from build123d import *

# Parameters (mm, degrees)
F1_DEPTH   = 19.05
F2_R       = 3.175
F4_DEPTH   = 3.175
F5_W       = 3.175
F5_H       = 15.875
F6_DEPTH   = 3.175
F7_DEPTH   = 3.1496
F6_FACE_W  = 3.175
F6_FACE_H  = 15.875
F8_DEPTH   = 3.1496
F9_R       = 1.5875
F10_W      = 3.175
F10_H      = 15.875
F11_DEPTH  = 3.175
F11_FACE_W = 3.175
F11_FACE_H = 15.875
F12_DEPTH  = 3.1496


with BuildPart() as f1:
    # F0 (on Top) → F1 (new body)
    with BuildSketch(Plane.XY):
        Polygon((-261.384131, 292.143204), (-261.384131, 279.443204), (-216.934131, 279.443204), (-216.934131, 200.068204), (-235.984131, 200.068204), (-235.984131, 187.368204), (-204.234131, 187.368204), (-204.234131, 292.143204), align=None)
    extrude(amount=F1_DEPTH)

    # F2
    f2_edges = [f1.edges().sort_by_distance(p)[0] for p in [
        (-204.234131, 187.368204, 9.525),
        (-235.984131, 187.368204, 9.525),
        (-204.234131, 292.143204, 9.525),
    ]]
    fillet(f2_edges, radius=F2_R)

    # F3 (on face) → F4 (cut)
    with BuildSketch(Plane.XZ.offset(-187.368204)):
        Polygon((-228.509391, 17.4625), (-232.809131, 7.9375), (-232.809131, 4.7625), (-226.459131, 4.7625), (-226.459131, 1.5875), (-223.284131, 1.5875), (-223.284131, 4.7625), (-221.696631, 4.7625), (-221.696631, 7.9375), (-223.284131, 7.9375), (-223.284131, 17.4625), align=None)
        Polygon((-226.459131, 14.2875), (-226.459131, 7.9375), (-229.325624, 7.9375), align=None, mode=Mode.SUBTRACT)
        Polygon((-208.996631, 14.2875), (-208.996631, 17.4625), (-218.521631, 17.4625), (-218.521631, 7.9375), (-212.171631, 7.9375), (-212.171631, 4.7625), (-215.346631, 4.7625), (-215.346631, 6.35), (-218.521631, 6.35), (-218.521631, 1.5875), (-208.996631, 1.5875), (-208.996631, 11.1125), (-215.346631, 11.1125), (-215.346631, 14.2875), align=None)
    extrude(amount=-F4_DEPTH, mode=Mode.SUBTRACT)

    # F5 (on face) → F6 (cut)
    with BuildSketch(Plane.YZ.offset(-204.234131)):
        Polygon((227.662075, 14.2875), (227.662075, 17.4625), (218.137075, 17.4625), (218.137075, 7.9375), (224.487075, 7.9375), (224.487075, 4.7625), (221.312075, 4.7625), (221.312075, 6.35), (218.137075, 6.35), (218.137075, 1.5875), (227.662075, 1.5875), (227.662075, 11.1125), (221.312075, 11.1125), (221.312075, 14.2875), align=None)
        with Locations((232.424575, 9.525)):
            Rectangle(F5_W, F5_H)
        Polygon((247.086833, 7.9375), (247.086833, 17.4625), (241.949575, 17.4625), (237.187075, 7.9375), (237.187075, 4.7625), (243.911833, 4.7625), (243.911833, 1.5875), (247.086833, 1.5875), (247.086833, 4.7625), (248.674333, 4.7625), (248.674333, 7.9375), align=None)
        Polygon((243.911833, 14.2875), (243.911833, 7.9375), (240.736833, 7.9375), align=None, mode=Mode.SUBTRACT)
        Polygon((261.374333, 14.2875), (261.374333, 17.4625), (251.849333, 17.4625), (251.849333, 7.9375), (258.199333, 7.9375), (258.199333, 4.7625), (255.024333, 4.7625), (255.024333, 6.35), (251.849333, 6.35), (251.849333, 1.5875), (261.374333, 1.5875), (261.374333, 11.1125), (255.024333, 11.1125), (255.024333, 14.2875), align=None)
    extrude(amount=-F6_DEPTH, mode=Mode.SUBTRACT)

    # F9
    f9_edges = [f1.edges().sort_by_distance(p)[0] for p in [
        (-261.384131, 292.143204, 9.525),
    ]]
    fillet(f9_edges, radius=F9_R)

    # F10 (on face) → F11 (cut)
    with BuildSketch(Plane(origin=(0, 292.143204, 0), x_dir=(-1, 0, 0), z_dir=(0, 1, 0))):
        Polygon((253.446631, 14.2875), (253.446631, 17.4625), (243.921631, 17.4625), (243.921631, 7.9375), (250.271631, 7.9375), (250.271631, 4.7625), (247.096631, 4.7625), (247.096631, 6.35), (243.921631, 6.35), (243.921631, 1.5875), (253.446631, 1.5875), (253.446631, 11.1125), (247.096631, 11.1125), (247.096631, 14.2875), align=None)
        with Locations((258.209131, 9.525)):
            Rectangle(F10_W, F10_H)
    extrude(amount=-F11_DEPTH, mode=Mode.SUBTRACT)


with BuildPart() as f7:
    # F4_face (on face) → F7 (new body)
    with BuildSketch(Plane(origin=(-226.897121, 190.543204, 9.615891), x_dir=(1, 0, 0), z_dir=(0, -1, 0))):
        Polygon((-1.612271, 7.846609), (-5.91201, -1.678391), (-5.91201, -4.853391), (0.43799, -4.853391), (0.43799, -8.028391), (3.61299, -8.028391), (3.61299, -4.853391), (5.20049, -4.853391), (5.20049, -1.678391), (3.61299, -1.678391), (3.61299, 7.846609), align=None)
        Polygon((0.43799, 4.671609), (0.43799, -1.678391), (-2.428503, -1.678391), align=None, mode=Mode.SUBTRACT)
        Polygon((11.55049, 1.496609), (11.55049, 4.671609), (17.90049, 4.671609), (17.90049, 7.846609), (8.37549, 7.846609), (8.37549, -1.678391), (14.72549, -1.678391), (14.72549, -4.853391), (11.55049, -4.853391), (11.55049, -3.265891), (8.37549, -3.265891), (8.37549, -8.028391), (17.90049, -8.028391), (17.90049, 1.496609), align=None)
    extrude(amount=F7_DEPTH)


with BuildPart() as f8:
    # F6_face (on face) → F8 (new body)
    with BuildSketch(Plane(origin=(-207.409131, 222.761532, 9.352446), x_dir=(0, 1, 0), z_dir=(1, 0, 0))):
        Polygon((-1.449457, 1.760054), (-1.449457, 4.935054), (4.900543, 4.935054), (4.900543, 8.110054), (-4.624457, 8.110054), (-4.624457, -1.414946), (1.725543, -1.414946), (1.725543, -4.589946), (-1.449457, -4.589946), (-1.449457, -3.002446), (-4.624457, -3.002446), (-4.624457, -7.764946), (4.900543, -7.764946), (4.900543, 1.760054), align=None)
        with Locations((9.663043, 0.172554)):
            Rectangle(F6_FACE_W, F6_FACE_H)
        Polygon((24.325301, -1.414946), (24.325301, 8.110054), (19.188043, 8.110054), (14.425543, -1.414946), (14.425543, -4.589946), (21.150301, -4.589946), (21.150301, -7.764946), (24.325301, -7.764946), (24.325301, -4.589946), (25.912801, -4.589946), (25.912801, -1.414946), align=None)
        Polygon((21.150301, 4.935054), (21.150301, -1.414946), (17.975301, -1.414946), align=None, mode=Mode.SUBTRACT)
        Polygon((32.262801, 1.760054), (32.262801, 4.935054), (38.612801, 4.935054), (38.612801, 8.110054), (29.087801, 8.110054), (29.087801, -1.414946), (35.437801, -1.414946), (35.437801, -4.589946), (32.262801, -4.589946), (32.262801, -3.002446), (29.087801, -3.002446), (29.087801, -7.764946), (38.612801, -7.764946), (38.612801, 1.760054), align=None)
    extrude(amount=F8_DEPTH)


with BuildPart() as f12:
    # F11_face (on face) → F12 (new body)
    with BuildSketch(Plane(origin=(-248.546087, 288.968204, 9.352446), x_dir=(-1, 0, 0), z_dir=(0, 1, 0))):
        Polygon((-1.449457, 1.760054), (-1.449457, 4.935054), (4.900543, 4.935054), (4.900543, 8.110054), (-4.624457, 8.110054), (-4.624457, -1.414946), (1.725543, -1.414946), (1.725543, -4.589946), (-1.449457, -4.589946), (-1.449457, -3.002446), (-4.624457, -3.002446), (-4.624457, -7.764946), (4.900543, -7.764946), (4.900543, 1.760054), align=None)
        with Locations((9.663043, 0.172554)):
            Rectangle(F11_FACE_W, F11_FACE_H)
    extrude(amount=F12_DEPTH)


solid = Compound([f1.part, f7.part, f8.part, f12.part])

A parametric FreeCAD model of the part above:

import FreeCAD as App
import Part
import Sketcher

V = App.Vector
Q = App.Units.Quantity


def edges_at(feature, points):
    """Names of the edges that pass closest to the given points."""
    edges = feature.Shape.Edges
    near = lambda p: min(range(len(edges)), key=lambda i: edges[i].distToShape(Part.Vertex(*p))[0])
    return sorted({f"Edge{near(p) + 1}" for p in points})


def add_polygon(sketch, points):
    """Adds a closed chain of lines whose ends are joined by coincident constraints."""
    first, n = sketch.GeometryCount, len(points)
    for a, b in zip(points, points[1:] + points[:1]):
        sketch.addGeometry(Part.LineSegment(App.Vector(*a, 0), App.Vector(*b, 0)), False)
    for i in range(n):
        sketch.addConstraint(Sketcher.Constraint("Coincident", first + i, 2, first + (i + 1) % n, 1))

doc = App.newDocument("Part")
body = doc.addObject("PartDesign::Body", "Body")

# Sketch on XY plane
sketch1 = body.newObject("Sketcher::SketchObject", "Sketch")
sketch1.AttachmentSupport = (doc.getObject("XY_Plane"), [""])
sketch1.MapMode = "FlatFace"
add_polygon(sketch1, [(-261, 292), (-261, 279), (-217, 279), (-217, 200), (-236, 200), (-236, 187), (-204, 187), (-204, 292)])  # lines 0-7
sketch1.addConstraint([
    Sketcher.Constraint("Vertical", 0),
    Sketcher.Constraint("Horizontal", 1),
    Sketcher.Constraint("Vertical", 2),
    Sketcher.Constraint("Horizontal", 3),
    Sketcher.Constraint("Vertical", 4),
    Sketcher.Constraint("Horizontal", 5),
    Sketcher.Constraint("Vertical", 6),
    Sketcher.Constraint("Horizontal", 7),
    Sketcher.Constraint("Equal", 0, 4),
    Sketcher.Constraint("DistanceY", 0, 2, 0, 1, Q("0.5 in")),
    Sketcher.Constraint("DistanceX", 0, 2, 3, 2, Q("1 in")),
    Sketcher.Constraint("DistanceX", 1, 1, 1, 2, Q("1.75 in")),
    Sketcher.Constraint("DistanceX", 5, 1, 5, 2, Q("1.25 in")),
    Sketcher.Constraint("DistanceY", 2, 2, 2, 1, Q("3.125 in")),
    Sketcher.Constraint("DistanceX", 0, 2, -1, 1, Q("261.384131 mm")),
    Sketcher.Constraint("DistanceY", -1, 1, 0, 2, Q("279.443204 mm")),
])
pad1 = body.newObject("PartDesign::Pad", "Pad")
pad1.Profile = sketch1
pad1.Length = Q("0.75 in")
doc.recompute()

fillet = body.newObject("PartDesign::Fillet", "Fillet")
fillet.Base = (pad1, edges_at(pad1, [(-204.234, 187.368, 9.525), (-235.984, 187.368, 9.525), (-204.234, 292.143, 9.525)]))
fillet.Radius = Q("0.125 in")

# Sketch on XZ plane
sketch2 = body.newObject("Sketcher::SketchObject", "Sketch001")
sketch2.AttachmentSupport = (doc.getObject("XZ_Plane"), [""])
sketch2.MapMode = "FlatFace"
sketch2.AttachmentOffset = App.Placement(V(0, 0, -187.368204), App.Rotation())
add_polygon(sketch2, [(-228.5, 17.5), (-232.8, 7.9), (-232.8, 4.8), (-226.5, 4.8), (-226.5, 1.6), (-223.3, 1.6), (-223.3, 4.8), (-221.7, 4.8), (-221.7, 7.9), (-223.3, 7.9), (-223.3, 17.5)])  # lines 0-10
add_polygon(sketch2, [(-229.3, 7.9), (-226.5, 14.3), (-226.5, 7.9)])  # lines 11-13
add_polygon(sketch2, [(-209, 14.3), (-209, 17.5), (-218.5, 17.5), (-218.5, 7.9), (-212.2, 7.9), (-212.2, 4.8), (-215.3, 4.8), (-215.3, 6.3), (-218.5, 6.3), (-218.5, 1.6), (-209, 1.6), (-209, 11.1), (-215.3, 11.1), (-215.3, 14.3)])  # lines 14-27
sketch2.addConstraint([
    Sketcher.Constraint("Vertical", 1),
    Sketcher.Constraint("Horizontal", 2),
    Sketcher.Constraint("Vertical", 3),
    Sketcher.Constraint("Horizontal", 4),
    Sketcher.Constraint("Vertical", 5),
    Sketcher.Constraint("Horizontal", 6),
    Sketcher.Constraint("Vertical", 7),
    Sketcher.Constraint("Horizontal", 8),
    Sketcher.Constraint("Vertical", 9),
    Sketcher.Constraint("Horizontal", 10),
    Sketcher.Constraint("Vertical", 12),
    Sketcher.Constraint("Horizontal", 13),
    Sketcher.Constraint("Vertical", 14),
    Sketcher.Constraint("Horizontal", 15),
    Sketcher.Constraint("Vertical", 16),
    Sketcher.Constraint("Horizontal", 17),
    Sketcher.Constraint("Vertical", 18),
    Sketcher.Constraint("Horizontal", 19),
    Sketcher.Constraint("Vertical", 20),
    Sketcher.Constraint("Horizontal", 21),
    Sketcher.Constraint("Vertical", 22),
    Sketcher.Constraint("Horizontal", 23),
    Sketcher.Constraint("Vertical", 24),
    Sketcher.Constraint("Horizontal", 25),
    Sketcher.Constraint("Vertical", 26),
    Sketcher.Constraint("Horizontal", 27),
    Sketcher.Constraint("Parallel", 0, 11),
    Sketcher.Constraint("Horizontal", 2, 2, 5, 2),
    Sketcher.Constraint("Horizontal", 0, 2, 7, 2),
    Sketcher.Constraint("Horizontal", 8, 2, 12, 2),
    Sketcher.Constraint("Horizontal", 10, 2, 14, 2),
    Sketcher.Constraint("Horizontal", 13, 2, 16, 2),
    Sketcher.Constraint("Horizontal", 6, 2, 18, 2),
    Sketcher.Constraint("Horizontal", 4, 2, 22, 2),
    Sketcher.Constraint("Horizontal", 11, 2, 26, 2),
    Sketcher.Constraint("Vertical", 5, 2, 8, 2),
    Sketcher.Constraint("Vertical", 3, 2, 11, 2),
    Sketcher.Constraint("Vertical", 16, 2, 21, 2),
    Sketcher.Constraint("Vertical", 14, 2, 23, 2),
    Sketcher.Constraint("Vertical", 20, 2, 25, 2),
    Sketcher.Constraint("Equal", 2, 17),
    Sketcher.Constraint("Equal", 4, 19),
    Sketcher.Constraint("Equal", 19, 21),
    Sketcher.Constraint("Equal", 17, 25),
    Sketcher.Constraint("Equal", 21, 1),
    Sketcher.Constraint("Equal", 1, 3),
    Sketcher.Constraint("Equal", 23, 9),
    Sketcher.Constraint("Equal", 27, 12),
    Sketcher.Constraint("Equal", 8, 20),
    Sketcher.Constraint("Equal", 16, 24),
    Sketcher.Constraint("DistanceX", 2, 1, 2, 2, Q("0.25 in")),
    Sketcher.Constraint("DistanceX", 7, 2, 14, 2, Q("0.5 in")),
    Sketcher.Constraint("DistanceX", 6, 1, 6, 2, Q("0.0625 in")),
    Sketcher.Constraint("DistanceY", -1, 1, 20, 2, Q("0.25 in")),
    Sketcher.Constraint("DistanceX", 10, 2, 10, 1, Q("5.22526 mm")),
    Sketcher.Constraint("DistanceX", 0, 2, -1, 1, Q("232.809131 mm")),
])
pocket1 = body.newObject("PartDesign::Pocket", "Pocket")
pocket1.Profile = sketch2
pocket1.Length = Q("0.125 in")

# Sketch on YZ plane
sketch3 = body.newObject("Sketcher::SketchObject", "Sketch002")
sketch3.AttachmentSupport = (doc.getObject("YZ_Plane"), [""])
sketch3.MapMode = "FlatFace"
sketch3.AttachmentOffset = App.Placement(V(0, 0, -204.234131), App.Rotation())
add_polygon(sketch3, [(227.7, 14.3), (227.7, 17.5), (218.1, 17.5), (218.1, 7.9), (224.5, 7.9), (224.5, 4.8), (221.3, 4.8), (221.3, 6.3), (218.1, 6.3), (218.1, 1.6), (227.7, 1.6), (227.7, 11.1), (221.3, 11.1), (221.3, 14.3)])  # lines 0-13
add_polygon(sketch3, [(230.8, 17.5), (230.8, 1.6), (234, 1.6), (234, 17.5)])  # lines 14-17
add_polygon(sketch3, [(247.1, 7.9), (247.1, 17.5), (241.9, 17.5), (237.2, 7.9), (237.2, 4.8), (243.9, 4.8), (243.9, 1.6), (247.1, 1.6), (247.1, 4.8), (248.7, 4.8), (248.7, 7.9)])  # lines 18-28
add_polygon(sketch3, [(240.7, 7.9), (243.9, 14.3), (243.9, 7.9)])  # lines 29-31
add_polygon(sketch3, [(261.4, 14.3), (261.4, 17.5), (251.8, 17.5), (251.8, 7.9), (258.2, 7.9), (258.2, 4.8), (255, 4.8), (255, 6.3), (251.8, 6.3), (251.8, 1.6), (261.4, 1.6), (261.4, 11.1), (255, 11.1), (255, 14.3)])  # lines 32-45
sketch3.addConstraint([
    Sketcher.Constraint("Vertical", 0),
    Sketcher.Constraint("Horizontal", 1),
    Sketcher.Constraint("Vertical", 2),
    Sketcher.Constraint("Horizontal", 3),
    Sketcher.Constraint("Vertical", 4),
    Sketcher.Constraint("Horizontal", 5),
    Sketcher.Constraint("Vertical", 6),
    Sketcher.Constraint("Horizontal", 7),
    Sketcher.Constraint("Vertical", 8),
    Sketcher.Constraint("Horizontal", 9),
    Sketcher.Constraint("Vertical", 10),
    Sketcher.Constraint("Horizontal", 11),
    Sketcher.Constraint("Vertical", 12),
    Sketcher.Constraint("Horizontal", 13),
    Sketcher.Constraint("Vertical", 14),
    Sketcher.Constraint("Horizontal", 15),
    Sketcher.Constraint("Vertical", 16),
    Sketcher.Constraint("Horizontal", 17),
    Sketcher.Constraint("Vertical", 18),
    Sketcher.Constraint("Horizontal", 19),
    Sketcher.Constraint("Vertical", 21),
    Sketcher.Constraint("Horizontal", 22),
    Sketcher.Constraint("Vertical", 23),
    Sketcher.Constraint("Horizontal", 24),
    Sketcher.Constraint("Vertical", 25),
    Sketcher.Constraint("Horizontal", 26),
    Sketcher.Constraint("Vertical", 27),
    Sketcher.Constraint("Horizontal", 28),
    Sketcher.Constraint("Vertical", 30),
    Sketcher.Constraint("Horizontal", 31),
    Sketcher.Constraint("Vertical", 32),
    Sketcher.Constraint("Horizontal", 33),
    Sketcher.Constraint("Vertical", 34),
    Sketcher.Constraint("Horizontal", 35),
    Sketcher.Constraint("Vertical", 36),
    Sketcher.Constraint("Horizontal", 37),
    Sketcher.Constraint("Vertical", 38),
    Sketcher.Constraint("Horizontal", 39),
    Sketcher.Constraint("Vertical", 40),
    Sketcher.Constraint("Horizontal", 41),
    Sketcher.Constraint("Vertical", 42),
    Sketcher.Constraint("Horizontal", 43),
    Sketcher.Constraint("Vertical", 44),
    Sketcher.Constraint("Horizontal", 45),
    Sketcher.Constraint("Parallel", 20, 29),
    Sketcher.Constraint("Horizontal", 9, 2, 14, 2),
    Sketcher.Constraint("Horizontal", 1, 2, 16, 2),
    Sketcher.Constraint("Horizontal", 17, 2, 18, 2),
    Sketcher.Constraint("Horizontal", 3, 2, 20, 2),
    Sketcher.Constraint("Horizontal", 5, 2, 21, 2),
    Sketcher.Constraint("Horizontal", 15, 2, 23, 2),
    Sketcher.Constraint("Horizontal", 22, 2, 25, 2),
    Sketcher.Constraint("Horizontal", 20, 2, 27, 2),
    Sketcher.Constraint("Horizontal", 13, 2, 29, 2),
    Sketcher.Constraint("Horizontal", 28, 2, 30, 2),
    Sketcher.Constraint("Horizontal", 19, 2, 32, 2),
    Sketcher.Constraint("Horizontal", 31, 2, 34, 2),
    Sketcher.Constraint("Horizontal", 26, 2, 36, 2),
    Sketcher.Constraint("Horizontal", 7, 2, 38, 2),
    Sketcher.Constraint("Horizontal", 24, 2, 40, 2),
    Sketcher.Constraint("Horizontal", 11, 2, 42, 2),
    Sketcher.Constraint("Horizontal", 29, 2, 44, 2),
    Sketcher.Constraint("Vertical", 2, 2, 7, 2),
    Sketcher.Constraint("Vertical", 0, 2, 9, 2),
    Sketcher.Constraint("Vertical", 6, 2, 11, 2),
    Sketcher.Constraint("Vertical", 18, 2, 24, 2),
    Sketcher.Constraint("Vertical", 23, 2, 29, 2),
    Sketcher.Constraint("Vertical", 34, 2, 39, 2),
    Sketcher.Constraint("Vertical", 32, 2, 41, 2),
    Sketcher.Constraint("Vertical", 38, 2, 43, 2),
    Sketcher.Constraint("Equal", 5, 7),
    Sketcher.Constraint("Equal", 3, 11),
    Sketcher.Constraint("Equal", 7, 15),
    Sketcher.Constraint("Equal", 17, 24),
    Sketcher.Constraint("Equal", 24, 31),
    Sketcher.Constraint("Equal", 9, 33),
    Sketcher.Constraint("Equal", 13, 35),
    Sketcher.Constraint("Equal", 31, 37),
    Sketcher.Constraint("Equal", 39, 0),
    Sketcher.Constraint("Equal", 41, 2),
    Sketcher.Constraint("Equal", 0, 4),
    Sketcher.Constraint("Equal", 28, 6),
    Sketcher.Constraint("Equal", 2, 10),
    Sketcher.Constraint("Equal", 4, 12),
    Sketcher.Constraint("DistanceX", 3, 1, 3, 2, Q("0.25 in")),
    Sketcher.Constraint("DistanceX", 12, 2, 16, 2, Q("0.5 in")),
    Sketcher.Constraint("DistanceX", 27, 2, 32, 2, Q("0.5 in")),
    Sketcher.Constraint("DistanceX", 26, 1, 26, 2, Q("0.0625 in")),
    Sketcher.Constraint("DistanceY", -1, 1, 6, 2, Q("0.25 in")),
    Sketcher.Constraint("DistanceX", 14, 2, 20, 2, Q("0.25 in")),
    Sketcher.Constraint("DistanceX", 19, 2, 19, 1, Q("5.137258 mm")),
    Sketcher.Constraint("DistanceX", -1, 1, 0, 2, Q("227.662075 mm")),
])
pocket2 = body.newObject("PartDesign::Pocket", "Pocket001")
pocket2.Profile = sketch3
pocket2.Length = Q("0.125 in")
doc.recompute()

fillet2 = body.newObject("PartDesign::Fillet", "Fillet001")
fillet2.Base = (pocket2, edges_at(pocket2, [(-261.384, 292.143, 9.525)]))
fillet2.Radius = Q("0.0625 in")

# Sketch on XZ plane
sketch4 = body.newObject("Sketcher::SketchObject", "Sketch003")
sketch4.AttachmentSupport = (doc.getObject("XZ_Plane"), [""])
sketch4.MapMode = "FlatFace"
sketch4.AttachmentOffset = App.Placement(V(0, 0, -292.143204), App.Rotation())
add_polygon(sketch4, [(-253.4, 14.3), (-253.4, 17.5), (-243.9, 17.5), (-243.9, 7.9), (-250.3, 7.9), (-250.3, 4.8), (-247.1, 4.8), (-247.1, 6.3), (-243.9, 6.3), (-243.9, 1.6), (-253.4, 1.6), (-253.4, 11.1), (-247.1, 11.1), (-247.1, 14.3)])  # lines 0-13
add_polygon(sketch4, [(-256.6, 17.5), (-256.6, 1.6), (-259.8, 1.6), (-259.8, 17.5)])  # lines 14-17
sketch4.addConstraint([
    Sketcher.Constraint("Vertical", 0),
    Sketcher.Constraint("Horizontal", 1),
    Sketcher.Constraint("Vertical", 2),
    Sketcher.Constraint("Horizontal", 3),
    Sketcher.Constraint("Vertical", 4),
    Sketcher.Constraint("Horizontal", 5),
    Sketcher.Constraint("Vertical", 6),
    Sketcher.Constraint("Horizontal", 7),
    Sketcher.Constraint("Vertical", 8),
    Sketcher.Constraint("Horizontal", 9),
    Sketcher.Constraint("Vertical", 10),
    Sketcher.Constraint("Horizontal", 11),
    Sketcher.Constraint("Vertical", 12),
    Sketcher.Constraint("Horizontal", 13),
    Sketcher.Constraint("Vertical", 14),
    Sketcher.Constraint("Horizontal", 15),
    Sketcher.Constraint("Vertical", 16),
    Sketcher.Constraint("Horizontal", 17),
    Sketcher.Constraint("Horizontal", 9, 2, 14, 2),
    Sketcher.Constraint("Horizontal", 1, 2, 16, 2),
    Sketcher.Constraint("Vertical", 2, 2, 7, 2),
    Sketcher.Constraint("Vertical", 0, 2, 9, 2),
    Sketcher.Constraint("Vertical", 6, 2, 11, 2),
    Sketcher.Constraint("Equal", 5, 7),
    Sketcher.Constraint("Equal", 3, 11),
    Sketcher.Constraint("Equal", 7, 15),
    Sketcher.Constraint("Equal", 17, 0),
    Sketcher.Constraint("Equal", 9, 2),
    Sketcher.Constraint("Equal", 0, 4),
    Sketcher.Constraint("Equal", 2, 10),
    Sketcher.Constraint("Equal", 4, 12),
    Sketcher.Constraint("DistanceX", 3, 2, 3, 1, Q("0.25 in")),
    Sketcher.Constraint("DistanceX", 16, 2, 12, 2, Q("0.5 in")),
    Sketcher.Constraint("DistanceY", 6, 1, 6, 2, Q("0.0625 in")),
    Sketcher.Constraint("DistanceY", -1, 1, 6, 2, Q("0.25 in")),
    Sketcher.Constraint("DistanceX", 0, 2, -1, 1, Q("253.446631 mm")),
])
pocket3 = body.newObject("PartDesign::Pocket", "Pocket002")
pocket3.Profile = sketch4
pocket3.Length = Q("0.125 in")
pocket3.Reversed = True
body2 = doc.addObject("PartDesign::Body", "Body001")
body2.AllowCompound = True

# Sketch on XZ plane
sketch5 = body2.newObject("Sketcher::SketchObject", "Sketch004")
sketch5.AttachmentSupport = (doc.getObject("XZ_Plane001"), [""])
sketch5.MapMode = "FlatFace"
sketch5.AttachmentOffset = App.Placement(V(0, 0, -190.543204), App.Rotation())
add_polygon(sketch5, [(-228.5, 17.5), (-232.8, 7.9), (-232.8, 4.8), (-226.5, 4.8), (-226.5, 1.6), (-223.3, 1.6), (-223.3, 4.8), (-221.7, 4.8), (-221.7, 7.9), (-223.3, 7.9), (-223.3, 17.5)])  # lines 0-10
add_polygon(sketch5, [(-229.3, 7.9), (-226.5, 14.3), (-226.5, 7.9)])  # lines 11-13
add_polygon(sketch5, [(-215.3, 11.1), (-215.3, 14.3), (-209, 14.3), (-209, 17.5), (-218.5, 17.5), (-218.5, 7.9), (-212.2, 7.9), (-212.2, 4.8), (-215.3, 4.8), (-215.3, 6.3), (-218.5, 6.3), (-218.5, 1.6), (-209, 1.6), (-209, 11.1)])  # lines 14-27
sketch5.addConstraint([
    Sketcher.Constraint("Vertical", 1),
    Sketcher.Constraint("Horizontal", 2),
    Sketcher.Constraint("Vertical", 3),
    Sketcher.Constraint("Horizontal", 4),
    Sketcher.Constraint("Vertical", 5),
    Sketcher.Constraint("Horizontal", 6),
    Sketcher.Constraint("Vertical", 7),
    Sketcher.Constraint("Horizontal", 8),
    Sketcher.Constraint("Vertical", 9),
    Sketcher.Constraint("Horizontal", 10),
    Sketcher.Constraint("Vertical", 12),
    Sketcher.Constraint("Horizontal", 13),
    Sketcher.Constraint("Vertical", 14),
    Sketcher.Constraint("Horizontal", 15),
    Sketcher.Constraint("Vertical", 16),
    Sketcher.Constraint("Horizontal", 17),
    Sketcher.Constraint("Vertical", 18),
    Sketcher.Constraint("Horizontal", 19),
    Sketcher.Constraint("Vertical", 20),
    Sketcher.Constraint("Horizontal", 21),
    Sketcher.Constraint("Vertical", 22),
    Sketcher.Constraint("Horizontal", 23),
    Sketcher.Constraint("Vertical", 24),
    Sketcher.Constraint("Horizontal", 25),
    Sketcher.Constraint("Vertical", 26),
    Sketcher.Constraint("Horizontal", 27),
    Sketcher.Constraint("Parallel", 0, 11),
    Sketcher.Constraint("Horizontal", 2, 2, 5, 2),
    Sketcher.Constraint("Horizontal", 0, 2, 7, 2),
    Sketcher.Constraint("Horizontal", 8, 2, 12, 2),
    Sketcher.Constraint("Horizontal", 11, 2, 14, 2),
    Sketcher.Constraint("Horizontal", 10, 2, 16, 2),
    Sketcher.Constraint("Horizontal", 13, 2, 18, 2),
    Sketcher.Constraint("Horizontal", 6, 2, 20, 2),
    Sketcher.Constraint("Horizontal", 4, 2, 24, 2),
    Sketcher.Constraint("Vertical", 5, 2, 8, 2),
    Sketcher.Constraint("Vertical", 3, 2, 11, 2),
    Sketcher.Constraint("Vertical", 14, 2, 21, 2),
    Sketcher.Constraint("Vertical", 18, 2, 23, 2),
    Sketcher.Constraint("Vertical", 16, 2, 25, 2),
    Sketcher.Constraint("Equal", 2, 15),
    Sketcher.Constraint("Equal", 15, 19),
    Sketcher.Constraint("Equal", 4, 21),
    Sketcher.Constraint("Equal", 21, 23),
    Sketcher.Constraint("Equal", 23, 1),
    Sketcher.Constraint("Equal", 1, 3),
    Sketcher.Constraint("Equal", 25, 9),
    Sketcher.Constraint("Equal", 27, 12),
    Sketcher.Constraint("Equal", 7, 14),
    Sketcher.Constraint("Equal", 8, 22),
    Sketcher.Constraint("DistanceX", 2, 1, 2, 2, Q("0.25 in")),
    Sketcher.Constraint("DistanceX", 7, 2, 15, 2, Q("0.5 in")),
    Sketcher.Constraint("DistanceX", 6, 1, 6, 2, Q("0.0625 in")),
    Sketcher.Constraint("DistanceY", -1, 1, 22, 2, Q("0.25 in")),
    Sketcher.Constraint("DistanceX", 10, 2, 10, 1, Q("5.225261 mm")),
    Sketcher.Constraint("DistanceX", 0, 2, -1, 1, Q("232.809131 mm")),
])
pad2 = body2.newObject("PartDesign::Pad", "Pad001")
pad2.Profile = sketch5
pad2.Length = Q("0.124 in")
body3 = doc.addObject("PartDesign::Body", "Body002")
body3.AllowCompound = True

# Sketch on YZ plane
sketch6 = body3.newObject("Sketcher::SketchObject", "Sketch005")
sketch6.AttachmentSupport = (doc.getObject("YZ_Plane002"), [""])
sketch6.MapMode = "FlatFace"
sketch6.AttachmentOffset = App.Placement(V(0, 0, -207.409131), App.Rotation())
add_polygon(sketch6, [(221.3, 11.1), (221.3, 14.3), (227.7, 14.3), (227.7, 17.5), (218.1, 17.5), (218.1, 7.9), (224.5, 7.9), (224.5, 4.8), (221.3, 4.8), (221.3, 6.3), (218.1, 6.3), (218.1, 1.6), (227.7, 1.6), (227.7, 11.1)])  # lines 0-13
add_polygon(sketch6, [(230.8, 17.5), (230.8, 1.6), (234, 1.6), (234, 17.5)])  # lines 14-17
add_polygon(sketch6, [(247.1, 7.9), (247.1, 17.5), (241.9, 17.5), (237.2, 7.9), (237.2, 4.8), (243.9, 4.8), (243.9, 1.6), (247.1, 1.6), (247.1, 4.8), (248.7, 4.8), (248.7, 7.9)])  # lines 18-28
add_polygon(sketch6, [(240.7, 7.9), (243.9, 14.3), (243.9, 7.9)])  # lines 29-31
add_polygon(sketch6, [(255, 11.1), (255, 14.3), (261.4, 14.3), (261.4, 17.5), (251.8, 17.5), (251.8, 7.9), (258.2, 7.9), (258.2, 4.8), (255, 4.8), (255, 6.3), (251.8, 6.3), (251.8, 1.6), (261.4, 1.6), (261.4, 11.1)])  # lines 32-45
sketch6.addConstraint([
    Sketcher.Constraint("Vertical", 0),
    Sketcher.Constraint("Horizontal", 1),
    Sketcher.Constraint("Vertical", 2),
    Sketcher.Constraint("Horizontal", 3),
    Sketcher.Constraint("Vertical", 4),
    Sketcher.Constraint("Horizontal", 5),
    Sketcher.Constraint("Vertical", 6),
    Sketcher.Constraint("Horizontal", 7),
    Sketcher.Constraint("Vertical", 8),
    Sketcher.Constraint("Horizontal", 9),
    Sketcher.Constraint("Vertical", 10),
    Sketcher.Constraint("Horizontal", 11),
    Sketcher.Constraint("Vertical", 12),
    Sketcher.Constraint("Horizontal", 13),
    Sketcher.Constraint("Vertical", 14),
    Sketcher.Constraint("Horizontal", 15),
    Sketcher.Constraint("Vertical", 16),
    Sketcher.Constraint("Horizontal", 17),
    Sketcher.Constraint("Vertical", 18),
    Sketcher.Constraint("Horizontal", 19),
    Sketcher.Constraint("Vertical", 21),
    Sketcher.Constraint("Horizontal", 22),
    Sketcher.Constraint("Vertical", 23),
    Sketcher.Constraint("Horizontal", 24),
    Sketcher.Constraint("Vertical", 25),
    Sketcher.Constraint("Horizontal", 26),
    Sketcher.Constraint("Vertical", 27),
    Sketcher.Constraint("Horizontal", 28),
    Sketcher.Constraint("Vertical", 30),
    Sketcher.Constraint("Horizontal", 31),
    Sketcher.Constraint("Vertical", 32),
    Sketcher.Constraint("Horizontal", 33),
    Sketcher.Constraint("Vertical", 34),
    Sketcher.Constraint("Horizontal", 35),
    Sketcher.Constraint("Vertical", 36),
    Sketcher.Constraint("Horizontal", 37),
    Sketcher.Constraint("Vertical", 38),
    Sketcher.Constraint("Horizontal", 39),
    Sketcher.Constraint("Vertical", 40),
    Sketcher.Constraint("Horizontal", 41),
    Sketcher.Constraint("Vertical", 42),
    Sketcher.Constraint("Horizontal", 43),
    Sketcher.Constraint("Vertical", 44),
    Sketcher.Constraint("Horizontal", 45),
    Sketcher.Constraint("Parallel", 20, 29),
    Sketcher.Constraint("Horizontal", 11, 2, 14, 2),
    Sketcher.Constraint("Horizontal", 3, 2, 16, 2),
    Sketcher.Constraint("Horizontal", 17, 2, 18, 2),
    Sketcher.Constraint("Horizontal", 5, 2, 20, 2),
    Sketcher.Constraint("Horizontal", 7, 2, 21, 2),
    Sketcher.Constraint("Horizontal", 15, 2, 23, 2),
    Sketcher.Constraint("Horizontal", 22, 2, 25, 2),
    Sketcher.Constraint("Horizontal", 20, 2, 27, 2),
    Sketcher.Constraint("Horizontal", 1, 2, 29, 2),
    Sketcher.Constraint("Horizontal", 28, 2, 30, 2),
    Sketcher.Constraint("Horizontal", 29, 2, 32, 2),
    Sketcher.Constraint("Horizontal", 19, 2, 34, 2),
    Sketcher.Constraint("Horizontal", 31, 2, 36, 2),
    Sketcher.Constraint("Horizontal", 26, 2, 38, 2),
    Sketcher.Constraint("Horizontal", 9, 2, 40, 2),
    Sketcher.Constraint("Horizontal", 24, 2, 42, 2),
    Sketcher.Constraint("Horizontal", 13, 2, 44, 2),
    Sketcher.Constraint("Vertical", 0, 2, 7, 2),
    Sketcher.Constraint("Vertical", 4, 2, 9, 2),
    Sketcher.Constraint("Vertical", 2, 2, 11, 2),
    Sketcher.Constraint("Vertical", 18, 2, 24, 2),
    Sketcher.Constraint("Vertical", 23, 2, 29, 2),
    Sketcher.Constraint("Vertical", 32, 2, 39, 2),
    Sketcher.Constraint("Vertical", 36, 2, 41, 2),
    Sketcher.Constraint("Vertical", 34, 2, 43, 2),
    Sketcher.Constraint("Equal", 1, 5),
    Sketcher.Constraint("Equal", 7, 9),
    Sketcher.Constraint("Equal", 9, 15),
    Sketcher.Constraint("Equal", 17, 24),
    Sketcher.Constraint("Equal", 24, 31),
    Sketcher.Constraint("Equal", 13, 33),
    Sketcher.Constraint("Equal", 11, 35),
    Sketcher.Constraint("Equal", 33, 37),
    Sketcher.Constraint("Equal", 41, 0),
    Sketcher.Constraint("Equal", 0, 2),
    Sketcher.Constraint("Equal", 43, 4),
    Sketcher.Constraint("Equal", 2, 6),
    Sketcher.Constraint("Equal", 28, 8),
    Sketcher.Constraint("Equal", 4, 12),
    Sketcher.Constraint("DistanceX", 1, 1, 1, 2, Q("0.25 in")),
    Sketcher.Constraint("DistanceX", 0, 2, 16, 2, Q("0.5 in")),
    Sketcher.Constraint("DistanceX", 27, 2, 33, 2, Q("0.5 in")),
    Sketcher.Constraint("DistanceX", 26, 1, 26, 2, Q("0.0625 in")),
    Sketcher.Constraint("DistanceY", -1, 1, 8, 2, Q("0.25 in")),
    Sketcher.Constraint("DistanceX", 14, 2, 20, 2, Q("0.25 in")),
    Sketcher.Constraint("DistanceX", 19, 2, 19, 1, Q("5.137258 mm")),
    Sketcher.Constraint("DistanceX", -1, 1, 0, 2, Q("221.312075 mm")),
])
pad3 = body3.newObject("PartDesign::Pad", "Pad002")
pad3.Profile = sketch6
pad3.Length = Q("0.124 in")
body4 = doc.addObject("PartDesign::Body", "Body003")
body4.AllowCompound = True

# Sketch on XZ plane
sketch7 = body4.newObject("Sketcher::SketchObject", "Sketch006")
sketch7.AttachmentSupport = (doc.getObject("XZ_Plane003"), [""])
sketch7.MapMode = "FlatFace"
sketch7.AttachmentOffset = App.Placement(V(0, 0, -288.968204), App.Rotation())
add_polygon(sketch7, [(-247.1, 11.1), (-247.1, 14.3), (-253.4, 14.3), (-253.4, 17.5), (-243.9, 17.5), (-243.9, 7.9), (-250.3, 7.9), (-250.3, 4.8), (-247.1, 4.8), (-247.1, 6.3), (-243.9, 6.3), (-243.9, 1.6), (-253.4, 1.6), (-253.4, 11.1)])  # lines 0-13
add_polygon(sketch7, [(-256.6, 17.5), (-256.6, 1.6), (-259.8, 1.6), (-259.8, 17.5)])  # lines 14-17
sketch7.addConstraint([
    Sketcher.Constraint("Vertical", 0),
    Sketcher.Constraint("Horizontal", 1),
    Sketcher.Constraint("Vertical", 2),
    Sketcher.Constraint("Horizontal", 3),
    Sketcher.Constraint("Vertical", 4),
    Sketcher.Constraint("Horizontal", 5),
    Sketcher.Constraint("Vertical", 6),
    Sketcher.Constraint("Horizontal", 7),
    Sketcher.Constraint("Vertical", 8),
    Sketcher.Constraint("Horizontal", 9),
    Sketcher.Constraint("Vertical", 10),
    Sketcher.Constraint("Horizontal", 11),
    Sketcher.Constraint("Vertical", 12),
    Sketcher.Constraint("Horizontal", 13),
    Sketcher.Constraint("Vertical", 14),
    Sketcher.Constraint("Horizontal", 15),
    Sketcher.Constraint("Vertical", 16),
    Sketcher.Constraint("Horizontal", 17),
    Sketcher.Constraint("Horizontal", 11, 2, 14, 2),
    Sketcher.Constraint("Horizontal", 3, 2, 16, 2),
    Sketcher.Constraint("Vertical", 0, 2, 7, 2),
    Sketcher.Constraint("Vertical", 4, 2, 9, 2),
    Sketcher.Constraint("Vertical", 2, 2, 11, 2),
    Sketcher.Constraint("Equal", 1, 5),
    Sketcher.Constraint("Equal", 7, 9),
    Sketcher.Constraint("Equal", 9, 15),
    Sketcher.Constraint("Equal", 17, 0),
    Sketcher.Constraint("Equal", 0, 2),
    Sketcher.Constraint("Equal", 11, 4),
    Sketcher.Constraint("Equal", 2, 6),
    Sketcher.Constraint("Equal", 4, 12),
    Sketcher.Constraint("DistanceX", 1, 2, 1, 1, Q("0.25 in")),
    Sketcher.Constraint("DistanceX", 16, 2, 0, 2, Q("0.5 in")),
    Sketcher.Constraint("DistanceY", 8, 1, 8, 2, Q("0.0625 in")),
    Sketcher.Constraint("DistanceY", -1, 1, 8, 2, Q("0.25 in")),
    Sketcher.Constraint("DistanceX", 0, 2, -1, 1, Q("247.09663 mm")),
])
pad4 = body4.newObject("PartDesign::Pad", "Pad003")
pad4.Profile = sketch7
pad4.Length = Q("0.124 in")
pad4.Reversed = True

doc.recompute()
